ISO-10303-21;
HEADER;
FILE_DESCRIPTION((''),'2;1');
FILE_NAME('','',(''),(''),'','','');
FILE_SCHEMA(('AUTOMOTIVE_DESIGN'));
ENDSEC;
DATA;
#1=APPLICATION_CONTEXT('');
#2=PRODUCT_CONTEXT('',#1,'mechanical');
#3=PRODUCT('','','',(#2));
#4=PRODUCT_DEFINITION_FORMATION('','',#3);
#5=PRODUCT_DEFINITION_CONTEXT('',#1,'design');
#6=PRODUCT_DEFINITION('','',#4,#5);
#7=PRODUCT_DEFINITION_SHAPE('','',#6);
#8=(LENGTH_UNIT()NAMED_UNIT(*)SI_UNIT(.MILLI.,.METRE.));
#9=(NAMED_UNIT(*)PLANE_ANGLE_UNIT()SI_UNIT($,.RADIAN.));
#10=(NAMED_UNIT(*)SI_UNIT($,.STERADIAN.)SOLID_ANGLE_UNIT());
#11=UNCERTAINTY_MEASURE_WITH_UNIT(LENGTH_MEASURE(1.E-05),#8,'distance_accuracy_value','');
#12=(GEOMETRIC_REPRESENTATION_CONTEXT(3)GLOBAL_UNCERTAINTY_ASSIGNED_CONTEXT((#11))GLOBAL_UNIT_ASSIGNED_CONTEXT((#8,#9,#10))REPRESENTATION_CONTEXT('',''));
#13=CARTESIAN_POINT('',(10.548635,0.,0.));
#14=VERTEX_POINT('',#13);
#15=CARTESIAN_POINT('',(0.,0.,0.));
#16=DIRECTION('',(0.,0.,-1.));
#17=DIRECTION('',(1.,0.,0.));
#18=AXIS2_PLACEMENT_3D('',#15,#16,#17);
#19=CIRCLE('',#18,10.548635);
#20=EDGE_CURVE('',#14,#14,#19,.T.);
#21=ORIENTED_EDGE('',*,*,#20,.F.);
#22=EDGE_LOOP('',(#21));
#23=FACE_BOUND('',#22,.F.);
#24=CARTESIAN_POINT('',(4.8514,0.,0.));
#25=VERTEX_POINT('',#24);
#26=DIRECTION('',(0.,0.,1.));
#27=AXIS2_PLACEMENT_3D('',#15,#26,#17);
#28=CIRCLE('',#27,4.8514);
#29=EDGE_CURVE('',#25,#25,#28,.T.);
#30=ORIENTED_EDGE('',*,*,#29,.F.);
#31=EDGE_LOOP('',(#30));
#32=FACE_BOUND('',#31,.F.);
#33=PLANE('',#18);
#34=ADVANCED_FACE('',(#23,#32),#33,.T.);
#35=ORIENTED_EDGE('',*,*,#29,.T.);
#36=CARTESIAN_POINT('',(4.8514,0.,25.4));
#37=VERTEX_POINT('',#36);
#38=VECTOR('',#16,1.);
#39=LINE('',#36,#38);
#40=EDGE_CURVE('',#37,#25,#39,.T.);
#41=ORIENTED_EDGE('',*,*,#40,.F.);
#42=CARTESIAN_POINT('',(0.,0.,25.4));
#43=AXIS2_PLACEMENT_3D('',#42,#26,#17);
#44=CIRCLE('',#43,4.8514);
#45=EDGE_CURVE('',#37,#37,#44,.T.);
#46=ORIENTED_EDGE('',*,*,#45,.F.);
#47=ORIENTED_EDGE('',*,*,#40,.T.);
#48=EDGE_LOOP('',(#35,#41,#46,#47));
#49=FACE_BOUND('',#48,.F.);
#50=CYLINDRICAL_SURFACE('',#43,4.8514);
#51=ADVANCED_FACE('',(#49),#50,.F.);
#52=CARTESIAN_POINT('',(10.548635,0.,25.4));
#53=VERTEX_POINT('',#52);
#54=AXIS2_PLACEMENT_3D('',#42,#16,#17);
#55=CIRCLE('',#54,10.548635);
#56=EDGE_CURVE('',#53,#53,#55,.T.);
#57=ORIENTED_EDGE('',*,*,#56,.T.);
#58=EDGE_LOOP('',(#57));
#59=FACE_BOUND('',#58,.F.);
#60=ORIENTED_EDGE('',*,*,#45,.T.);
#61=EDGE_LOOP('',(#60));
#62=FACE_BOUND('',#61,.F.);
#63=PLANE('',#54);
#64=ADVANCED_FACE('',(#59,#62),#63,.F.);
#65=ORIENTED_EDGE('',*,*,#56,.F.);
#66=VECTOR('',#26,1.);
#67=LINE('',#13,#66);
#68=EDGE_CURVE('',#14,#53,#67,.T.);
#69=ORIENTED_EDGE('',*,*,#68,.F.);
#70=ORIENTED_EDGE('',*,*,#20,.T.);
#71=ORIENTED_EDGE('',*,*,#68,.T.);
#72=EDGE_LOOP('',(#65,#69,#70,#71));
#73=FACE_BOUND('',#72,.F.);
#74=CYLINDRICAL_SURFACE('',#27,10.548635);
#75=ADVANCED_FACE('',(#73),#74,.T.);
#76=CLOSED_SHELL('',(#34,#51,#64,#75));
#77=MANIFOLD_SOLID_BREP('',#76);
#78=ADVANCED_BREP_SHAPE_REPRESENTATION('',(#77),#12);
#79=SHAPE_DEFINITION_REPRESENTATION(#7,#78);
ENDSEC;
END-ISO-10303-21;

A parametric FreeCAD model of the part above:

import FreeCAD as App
import Part
import Sketcher
Q = App.Units.Quantity


def add_polygon(sketch, points):
    """Adds a closed chain of lines whose ends are joined by coincident constraints."""
    first, n = sketch.GeometryCount, len(points)
    for a, b in zip(points, points[1:] + points[:1]):
        sketch.addGeometry(Part.LineSegment(App.Vector(*a, 0), App.Vector(*b, 0)), False)
    for i in range(n):
        sketch.addConstraint(Sketcher.Constraint("Coincident", first + i, 2, first + (i + 1) % n, 1))

doc = App.newDocument("Part")
params = doc.addObject("Spreadsheet::Sheet", "Params")
for row, (alias, value) in enumerate([
    ("sketch1_height", "1 in"),
    ("revolution_angle", "360 deg"),
    ("sketch2_diameter", "0.382 in"),
    ("pocket1_length", "1 in"),
], start=1):
    params.set(f"A{row}", alias)
    params.set(f"B{row}", "=" + value)
    params.setAlias(f"B{row}", alias)

body = doc.addObject("PartDesign::Body", "Body")

# Sketch on XZ plane
sketch1 = doc.addObject("Sketcher::SketchObject", "Sketch")
body.addObject(sketch1)
sketch1.AttachmentSupport = (doc.XZ_Plane, [""])
sketch1.MapMode = "FlatFace"
add_polygon(sketch1, [(0, 0), (11, 0), (11, 25), (0, 25)])  # lines 0-3
sketch1.addConstraint([
    Sketcher.Constraint("Horizontal", 0),
    Sketcher.Constraint("Vertical", 1),
    Sketcher.Constraint("Horizontal", 2),
    Sketcher.Constraint("Vertical", 3),
    Sketcher.Constraint("Coincident", 3, 2, -1, 1),
    Sketcher.Constraint("DistanceY", 1, 1, 1, 2, Q("1 in")),
    Sketcher.Constraint("DistanceX", 0, 1, 0, 2, 10.548635),
])
sketch1.setExpression("Constraints[9]", "Params.sketch1_height")
revolution = doc.addObject("PartDesign::Revolution", "Revolution")
body.addObject(revolution)
revolution.Profile = sketch1
revolution.ReferenceAxis = (sketch1, ["V_Axis"])
revolution.setExpression("Angle", "Params.revolution_angle")

# Sketch on XY plane
sketch2 = doc.addObject("Sketcher::SketchObject", "Sketch001")
body.addObject(sketch2)
sketch2.AttachmentSupport = (doc.XY_Plane, [""])
sketch2.MapMode = "FlatFace"
sketch2.AttachmentOffset = App.Placement(App.Vector(0, 0, 1 * 25.4), App.Rotation())
sketch2.addGeometry(Part.Circle(App.Vector(0, 0, 0), App.Vector(0, 0, 1), 4.9), False)
sketch2.addConstraint([
    Sketcher.Constraint("Coincident", 0, 3, -1, 1),
    Sketcher.Constraint("Diameter", 0, Q("0.382 in")),
])
sketch2.setExpression("Constraints[1]", "Params.sketch2_diameter")
pocket1 = doc.addObject("PartDesign::Pocket", "Pocket")
body.addObject(pocket1)
pocket1.Profile = sketch2
pocket1.setExpression("Length", "Params.pocket1_length")

doc.recompute()
